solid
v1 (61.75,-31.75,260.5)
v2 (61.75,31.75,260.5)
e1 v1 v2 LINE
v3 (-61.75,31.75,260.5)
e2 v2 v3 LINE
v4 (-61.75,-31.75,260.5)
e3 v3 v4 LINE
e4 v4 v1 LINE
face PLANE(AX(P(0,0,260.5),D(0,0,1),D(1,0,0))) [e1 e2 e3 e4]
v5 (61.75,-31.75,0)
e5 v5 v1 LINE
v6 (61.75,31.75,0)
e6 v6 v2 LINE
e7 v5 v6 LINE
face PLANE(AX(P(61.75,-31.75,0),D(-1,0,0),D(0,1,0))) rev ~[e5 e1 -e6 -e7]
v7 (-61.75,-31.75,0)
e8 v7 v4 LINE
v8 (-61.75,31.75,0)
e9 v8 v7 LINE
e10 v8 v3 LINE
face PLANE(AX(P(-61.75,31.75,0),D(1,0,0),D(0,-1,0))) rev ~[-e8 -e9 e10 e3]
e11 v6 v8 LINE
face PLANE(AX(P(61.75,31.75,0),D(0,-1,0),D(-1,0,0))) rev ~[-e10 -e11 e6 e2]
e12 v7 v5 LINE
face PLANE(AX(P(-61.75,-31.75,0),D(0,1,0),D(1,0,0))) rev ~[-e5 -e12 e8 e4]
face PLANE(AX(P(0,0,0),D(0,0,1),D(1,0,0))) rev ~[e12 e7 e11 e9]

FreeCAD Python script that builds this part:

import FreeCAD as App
import Part
import Sketcher
Q = App.Units.Quantity


def add_polygon(sketch, points):
    """Adds a closed chain of lines whose ends are joined by coincident constraints."""
    first, n = sketch.GeometryCount, len(points)
    for a, b in zip(points, points[1:] + points[:1]):
        sketch.addGeometry(Part.LineSegment(App.Vector(*a, 0), App.Vector(*b, 0)), False)
    for i in range(n):
        sketch.addConstraint(Sketcher.Constraint("Coincident", first + i, 2, first + (i + 1) % n, 1))

doc = App.newDocument("Part")
body = doc.addObject("PartDesign::Body", "Body")

# Sketch on XY plane
sketch1 = doc.addObject("Sketcher::SketchObject", "Sketch")
body.addObject(sketch1)
sketch1.AttachmentSupport = (doc.XY_Plane, [""])
sketch1.MapMode = "FlatFace"
add_polygon(sketch1, [(-62, 32), (-62, -32), (62, -32), (62, 32)])  # lines 0-3
sketch1.addConstraint(Sketcher.Constraint("Vertical", 0))
sketch1.addConstraint(Sketcher.Constraint("Horizontal", 1))
sketch1.addConstraint(Sketcher.Constraint("Vertical", 2))
sketch1.addConstraint(Sketcher.Constraint("Horizontal", 3))
sketch1.addConstraint(Sketcher.Constraint("Symmetric", 0, 2, 2, 2, -1, 1))
sketch1.addConstraint(Sketcher.Constraint("DistanceY", 0, 2, 0, 1, Q("2.5 in")))
sketch1.addConstraint(Sketcher.Constraint("DistanceX", 1, 1, 1, 2, Q("4.8622 in")))
pad1 = doc.addObject("PartDesign::Pad", "Pad")
body.addObject(pad1)
pad1.Profile = sketch1
pad1.Length = Q("10.2559055 in")

doc.recompute()
